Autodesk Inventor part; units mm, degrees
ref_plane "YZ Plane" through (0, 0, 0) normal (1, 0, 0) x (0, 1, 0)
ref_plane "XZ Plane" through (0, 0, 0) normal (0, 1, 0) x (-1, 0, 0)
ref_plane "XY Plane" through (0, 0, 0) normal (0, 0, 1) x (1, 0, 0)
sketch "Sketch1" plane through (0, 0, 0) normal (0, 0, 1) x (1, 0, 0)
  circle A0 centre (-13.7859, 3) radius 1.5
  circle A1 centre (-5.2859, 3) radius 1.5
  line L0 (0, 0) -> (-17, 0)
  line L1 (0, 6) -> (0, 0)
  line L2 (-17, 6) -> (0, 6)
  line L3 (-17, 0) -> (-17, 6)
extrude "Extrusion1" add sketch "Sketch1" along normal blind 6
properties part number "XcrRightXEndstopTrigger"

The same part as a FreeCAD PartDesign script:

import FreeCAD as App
import Part
import Sketcher
from FreeCAD import Vector
Q = App.Units.Quantity


def add_polygon(sketch, points):
    """Adds a closed chain of lines whose ends are joined by coincident constraints."""
    first, n = sketch.GeometryCount, len(points)
    for a, b in zip(points, points[1:] + points[:1]):
        sketch.addGeometry(Part.LineSegment(App.Vector(*a, 0), App.Vector(*b, 0)), False)
    for i in range(n):
        sketch.addConstraint(Sketcher.Constraint("Coincident", first + i, 2, first + (i + 1) % n, 1))

doc = App.newDocument("Part")
body = doc.addObject("PartDesign::Body", "Body")

# Sketch on XY plane
sketch1 = body.newObject("Sketcher::SketchObject", "Sketch")
sketch1.AttachmentSupport = (doc.getObject("XY_Plane"), [""])
sketch1.MapMode = "FlatFace"
add_polygon(sketch1, [(-17, 0), (0, 0), (0, 6), (-17, 6)])  # lines 0-3
sketch1.addGeometry(Part.Circle(Vector(-13.8, 3, 0), Vector(0, 0, 1), 1.5), False)  # 4
sketch1.addGeometry(Part.Circle(Vector(-5.3, 3, 0), Vector(0, 0, 1), 1.5), False)  # 5
sketch1.addConstraint(Sketcher.Constraint("Horizontal", 0))
sketch1.addConstraint(Sketcher.Constraint("Vertical", 1))
sketch1.addConstraint(Sketcher.Constraint("Horizontal", 2))
sketch1.addConstraint(Sketcher.Constraint("Vertical", 3))
sketch1.addConstraint(Sketcher.Constraint("Coincident", 0, 2, -1, 1))
sketch1.addConstraint(Sketcher.Constraint("Equal", 4, 5))
sketch1.addConstraint(Sketcher.Constraint("Horizontal", 4, 3, 5, 3))
sketch1.addConstraint(Sketcher.Constraint("Diameter", 4, Q("3 mm")))
sketch1.addConstraint(Sketcher.Constraint("DistanceX", 0, 1, 0, 2, Q("17 mm")))
sketch1.addConstraint(Sketcher.Constraint("DistanceY", 1, 1, 1, 2, Q("6 mm")))
sketch1.addConstraint(Sketcher.Constraint("DistanceY", -1, 1, 4, 3, Q("3 mm")))
sketch1.addConstraint(Sketcher.Constraint("DistanceX", 4, 3, 5, 3, Q("8.5 mm")))
sketch1.addConstraint(Sketcher.Constraint("DistanceX", 4, 3, -1, 1, Q("13.786 mm")))
pad1 = body.newObject("PartDesign::Pad", "Pad")
pad1.Profile = sketch1
pad1.Length = 6

doc.recompute()
